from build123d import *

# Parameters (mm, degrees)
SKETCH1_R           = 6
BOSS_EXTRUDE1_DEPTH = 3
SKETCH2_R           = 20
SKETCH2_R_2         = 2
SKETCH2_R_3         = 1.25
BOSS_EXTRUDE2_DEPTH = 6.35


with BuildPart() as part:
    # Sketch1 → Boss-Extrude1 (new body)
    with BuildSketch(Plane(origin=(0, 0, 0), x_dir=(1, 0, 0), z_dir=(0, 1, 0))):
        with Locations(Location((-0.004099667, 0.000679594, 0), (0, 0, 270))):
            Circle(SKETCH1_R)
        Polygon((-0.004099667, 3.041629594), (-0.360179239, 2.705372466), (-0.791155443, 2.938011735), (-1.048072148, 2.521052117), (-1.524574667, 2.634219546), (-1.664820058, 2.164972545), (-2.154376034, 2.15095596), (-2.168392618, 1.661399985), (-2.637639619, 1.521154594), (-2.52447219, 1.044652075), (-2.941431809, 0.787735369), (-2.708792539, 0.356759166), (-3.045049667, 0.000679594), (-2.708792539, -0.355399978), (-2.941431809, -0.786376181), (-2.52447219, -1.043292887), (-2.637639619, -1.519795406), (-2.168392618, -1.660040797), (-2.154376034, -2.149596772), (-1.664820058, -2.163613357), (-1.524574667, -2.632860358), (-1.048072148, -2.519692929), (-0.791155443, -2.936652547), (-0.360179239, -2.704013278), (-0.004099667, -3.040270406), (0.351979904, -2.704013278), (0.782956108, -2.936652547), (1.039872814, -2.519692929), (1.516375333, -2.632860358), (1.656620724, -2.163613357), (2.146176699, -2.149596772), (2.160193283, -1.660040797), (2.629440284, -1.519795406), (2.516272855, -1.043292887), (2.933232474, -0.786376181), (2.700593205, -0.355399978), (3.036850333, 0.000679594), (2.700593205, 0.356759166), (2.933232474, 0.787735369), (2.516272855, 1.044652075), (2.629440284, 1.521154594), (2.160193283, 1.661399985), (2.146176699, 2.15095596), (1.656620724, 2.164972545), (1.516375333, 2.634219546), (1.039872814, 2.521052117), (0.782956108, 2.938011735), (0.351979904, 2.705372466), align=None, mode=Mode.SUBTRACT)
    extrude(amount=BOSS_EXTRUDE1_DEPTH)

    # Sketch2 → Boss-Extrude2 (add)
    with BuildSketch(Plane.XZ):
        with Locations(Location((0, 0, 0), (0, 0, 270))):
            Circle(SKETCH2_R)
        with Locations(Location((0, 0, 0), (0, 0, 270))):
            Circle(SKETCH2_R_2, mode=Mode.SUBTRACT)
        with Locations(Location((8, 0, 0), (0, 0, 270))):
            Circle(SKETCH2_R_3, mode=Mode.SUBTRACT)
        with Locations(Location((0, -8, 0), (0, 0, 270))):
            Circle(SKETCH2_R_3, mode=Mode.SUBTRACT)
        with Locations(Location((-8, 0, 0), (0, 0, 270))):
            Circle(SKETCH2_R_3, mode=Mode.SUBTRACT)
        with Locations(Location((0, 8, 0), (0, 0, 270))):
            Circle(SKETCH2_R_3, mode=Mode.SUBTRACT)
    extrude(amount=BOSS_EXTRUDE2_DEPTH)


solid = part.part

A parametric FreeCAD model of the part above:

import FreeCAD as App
import Part
import Sketcher
from FreeCAD import Vector
Q = App.Units.Quantity

doc = App.newDocument("Part")
body = doc.addObject("PartDesign::Body", "Body")

sketch1 = body.newObject("Sketcher::SketchObject", "Sketch")
sketch1.AttachmentSupport = (doc.getObject("XZ_Plane"), [""])
sketch1.MapMode = "FlatFace"
sketch1.addGeometry([
    Part.Circle(Vector(0, 0, 0), Vector(0, 0, 1), 6),
    Part.LineSegment(Vector(-0.36, -2.71, 0), Vector(0, -3.04, 0)),
    Part.LineSegment(Vector(0, -3.04, 0), Vector(0.35, -2.71, 0)),
    Part.LineSegment(Vector(0.35, -2.71, 0), Vector(0.78, -2.94, 0)),
    Part.LineSegment(Vector(0.78, -2.94, 0), Vector(1.04, -2.52, 0)),
    Part.LineSegment(Vector(1.04, -2.52, 0), Vector(1.52, -2.63, 0)),
    Part.LineSegment(Vector(1.52, -2.63, 0), Vector(1.66, -2.16, 0)),
    Part.LineSegment(Vector(1.66, -2.16, 0), Vector(2.15, -2.15, 0)),
    Part.LineSegment(Vector(2.15, -2.15, 0), Vector(2.16, -1.66, 0)),
    Part.LineSegment(Vector(2.16, -1.66, 0), Vector(2.63, -1.52, 0)),
    Part.LineSegment(Vector(2.63, -1.52, 0), Vector(2.52, -1.04, 0)),
    Part.LineSegment(Vector(2.52, -1.04, 0), Vector(2.93, -0.79, 0)),
    Part.LineSegment(Vector(2.93, -0.79, 0), Vector(2.7, -0.36, 0)),
    Part.LineSegment(Vector(2.7, -0.36, 0), Vector(3.04, 0, 0)),
    Part.LineSegment(Vector(3.04, 0, 0), Vector(2.7, 0.36, 0)),
    Part.LineSegment(Vector(2.7, 0.36, 0), Vector(2.93, 0.79, 0)),
    Part.LineSegment(Vector(2.93, 0.79, 0), Vector(2.52, 1.04, 0)),
    Part.LineSegment(Vector(2.52, 1.04, 0), Vector(2.63, 1.52, 0)),
    Part.LineSegment(Vector(2.63, 1.52, 0), Vector(2.16, 1.66, 0)),
    Part.LineSegment(Vector(2.16, 1.66, 0), Vector(2.15, 2.15, 0)),
    Part.LineSegment(Vector(2.15, 2.15, 0), Vector(1.66, 2.16, 0)),
    Part.LineSegment(Vector(1.66, 2.16, 0), Vector(1.52, 2.63, 0)),
    Part.LineSegment(Vector(1.52, 2.63, 0), Vector(1.04, 2.52, 0)),
    Part.LineSegment(Vector(1.04, 2.52, 0), Vector(0.78, 2.94, 0)),
    Part.LineSegment(Vector(0.78, 2.94, 0), Vector(0.35, 2.7, 0)),
    Part.LineSegment(Vector(0.35, 2.7, 0), Vector(0, 3.04, 0)),
    Part.LineSegment(Vector(0, 3.04, 0), Vector(-0.36, 2.7, 0)),
    Part.LineSegment(Vector(-0.36, 2.7, 0), Vector(-0.79, 2.94, 0)),
    Part.LineSegment(Vector(-0.79, 2.94, 0), Vector(-1.05, 2.52, 0)),
    Part.LineSegment(Vector(-1.05, 2.52, 0), Vector(-1.52, 2.63, 0)),
    Part.LineSegment(Vector(-1.52, 2.63, 0), Vector(-1.66, 2.16, 0)),
    Part.LineSegment(Vector(-1.66, 2.16, 0), Vector(-2.15, 2.15, 0)),
    Part.LineSegment(Vector(-2.15, 2.15, 0), Vector(-2.17, 1.66, 0)),
    Part.LineSegment(Vector(-2.17, 1.66, 0), Vector(-2.64, 1.52, 0)),
    Part.LineSegment(Vector(-2.64, 1.52, 0), Vector(-2.52, 1.04, 0)),
    Part.LineSegment(Vector(-2.52, 1.04, 0), Vector(-2.94, 0.79, 0)),
    Part.LineSegment(Vector(-2.94, 0.79, 0), Vector(-2.71, 0.36, 0)),
    Part.LineSegment(Vector(-2.71, 0.36, 0), Vector(-3.05, 0, 0)),
    Part.LineSegment(Vector(-3.05, 0, 0), Vector(-2.71, -0.36, 0)),
    Part.LineSegment(Vector(-2.71, -0.36, 0), Vector(-2.94, -0.79, 0)),
    Part.LineSegment(Vector(-2.94, -0.79, 0), Vector(-2.52, -1.04, 0)),
    Part.LineSegment(Vector(-2.52, -1.04, 0), Vector(-2.64, -1.52, 0)),
    Part.LineSegment(Vector(-2.64, -1.52, 0), Vector(-2.17, -1.66, 0)),
    Part.LineSegment(Vector(-2.17, -1.66, 0), Vector(-2.15, -2.15, 0)),
    Part.LineSegment(Vector(-2.15, -2.15, 0), Vector(-1.66, -2.16, 0)),
    Part.LineSegment(Vector(-1.66, -2.16, 0), Vector(-1.52, -2.63, 0)),
    Part.LineSegment(Vector(-1.52, -2.63, 0), Vector(-1.05, -2.52, 0)),
    Part.LineSegment(Vector(-1.05, -2.52, 0), Vector(-0.79, -2.94, 0)),
    Part.LineSegment(Vector(-0.79, -2.94, 0), Vector(-0.36, -2.71, 0)),
], False)
sketch1.addConstraint([
    Sketcher.Constraint("Coincident", 1, 2, 2, 1),
    Sketcher.Constraint("Coincident", 2, 2, 3, 1),
    Sketcher.Constraint("Coincident", 3, 2, 4, 1),
    Sketcher.Constraint("Coincident", 4, 2, 5, 1),
    Sketcher.Constraint("Coincident", 5, 2, 6, 1),
    Sketcher.Constraint("Coincident", 6, 2, 7, 1),
    Sketcher.Constraint("Coincident", 7, 2, 8, 1),
    Sketcher.Constraint("Coincident", 8, 2, 9, 1),
    Sketcher.Constraint("Coincident", 9, 2, 10, 1),
    Sketcher.Constraint("Coincident", 10, 2, 11, 1),
    Sketcher.Constraint("Coincident", 11, 2, 12, 1),
    Sketcher.Constraint("Coincident", 12, 2, 13, 1),
    Sketcher.Constraint("Coincident", 13, 2, 14, 1),
    Sketcher.Constraint("Coincident", 14, 2, 15, 1),
    Sketcher.Constraint("Coincident", 15, 2, 16, 1),
    Sketcher.Constraint("Coincident", 16, 2, 17, 1),
    Sketcher.Constraint("Coincident", 17, 2, 18, 1),
    Sketcher.Constraint("Coincident", 18, 2, 19, 1),
    Sketcher.Constraint("Coincident", 19, 2, 20, 1),
    Sketcher.Constraint("Coincident", 20, 2, 21, 1),
    Sketcher.Constraint("Coincident", 21, 2, 22, 1),
    Sketcher.Constraint("Coincident", 22, 2, 23, 1),
    Sketcher.Constraint("Coincident", 23, 2, 24, 1),
    Sketcher.Constraint("Coincident", 24, 2, 25, 1),
    Sketcher.Constraint("Coincident", 25, 2, 26, 1),
    Sketcher.Constraint("Coincident", 26, 2, 27, 1),
    Sketcher.Constraint("Coincident", 27, 2, 28, 1),
    Sketcher.Constraint("Coincident", 28, 2, 29, 1),
    Sketcher.Constraint("Coincident", 29, 2, 30, 1),
    Sketcher.Constraint("Coincident", 30, 2, 31, 1),
    Sketcher.Constraint("Coincident", 31, 2, 32, 1),
    Sketcher.Constraint("Coincident", 32, 2, 33, 1),
    Sketcher.Constraint("Coincident", 33, 2, 34, 1),
    Sketcher.Constraint("Coincident", 34, 2, 35, 1),
    Sketcher.Constraint("Coincident", 35, 2, 36, 1),
    Sketcher.Constraint("Coincident", 36, 2, 37, 1),
    Sketcher.Constraint("Coincident", 37, 2, 38, 1),
    Sketcher.Constraint("Coincident", 38, 2, 39, 1),
    Sketcher.Constraint("Coincident", 39, 2, 40, 1),
    Sketcher.Constraint("Coincident", 40, 2, 41, 1),
    Sketcher.Constraint("Coincident", 41, 2, 42, 1),
    Sketcher.Constraint("Coincident", 42, 2, 43, 1),
    Sketcher.Constraint("Coincident", 43, 2, 44, 1),
    Sketcher.Constraint("Coincident", 44, 2, 45, 1),
    Sketcher.Constraint("Coincident", 45, 2, 46, 1),
    Sketcher.Constraint("Coincident", 46, 2, 47, 1),
    Sketcher.Constraint("Coincident", 47, 2, 48, 1),
    Sketcher.Constraint("Coincident", 48, 2, 1, 1),
    Sketcher.Constraint("Perpendicular", 1, 13),
    Sketcher.Constraint("Perpendicular", 2, 14),
    Sketcher.Constraint("Perpendicular", 3, 15),
    Sketcher.Constraint("Perpendicular", 4, 16),
    Sketcher.Constraint("Perpendicular", 5, 17),
    Sketcher.Constraint("Perpendicular", 6, 18),
    Sketcher.Constraint("Perpendicular", 7, 19),
    Sketcher.Constraint("Perpendicular", 8, 20),
    Sketcher.Constraint("Perpendicular", 9, 21),
    Sketcher.Constraint("Perpendicular", 10, 22),
    Sketcher.Constraint("Perpendicular", 11, 23),
    Sketcher.Constraint("Perpendicular", 12, 24),
    Sketcher.Constraint("Perpendicular", 13, 25),
    Sketcher.Constraint("Perpendicular", 14, 26),
    Sketcher.Constraint("Perpendicular", 15, 27),
    Sketcher.Constraint("Perpendicular", 16, 28),
    Sketcher.Constraint("Perpendicular", 17, 29),
    Sketcher.Constraint("Perpendicular", 18, 30),
    Sketcher.Constraint("Perpendicular", 19, 31),
    Sketcher.Constraint("Perpendicular", 20, 32),
    Sketcher.Constraint("Perpendicular", 21, 33),
    Sketcher.Constraint("Perpendicular", 22, 34),
    Sketcher.Constraint("Perpendicular", 23, 35),
    Sketcher.Constraint("Perpendicular", 24, 36),
    Sketcher.Constraint("Perpendicular", 25, 37),
    Sketcher.Constraint("Perpendicular", 26, 38),
    Sketcher.Constraint("Perpendicular", 27, 39),
    Sketcher.Constraint("Perpendicular", 28, 40),
    Sketcher.Constraint("Perpendicular", 29, 41),
    Sketcher.Constraint("Perpendicular", 30, 42),
    Sketcher.Constraint("Perpendicular", 31, 43),
    Sketcher.Constraint("Perpendicular", 32, 44),
    Sketcher.Constraint("Perpendicular", 33, 45),
    Sketcher.Constraint("Perpendicular", 34, 46),
    Sketcher.Constraint("Perpendicular", 35, 47),
    Sketcher.Constraint("Perpendicular", 36, 48),
    Sketcher.Constraint("Horizontal", 0, 3, 13, 2),
    Sketcher.Constraint("Horizontal", 24, 2, 26, 2),
    Sketcher.Constraint("Horizontal", 23, 2, 27, 2),
    Sketcher.Constraint("Horizontal", 22, 2, 28, 2),
    Sketcher.Constraint("Horizontal", 21, 2, 29, 2),
    Sketcher.Constraint("Horizontal", 20, 2, 30, 2),
    Sketcher.Constraint("Horizontal", 19, 2, 31, 2),
    Sketcher.Constraint("Horizontal", 18, 2, 32, 2),
    Sketcher.Constraint("Horizontal", 17, 2, 33, 2),
    Sketcher.Constraint("Horizontal", 16, 2, 34, 2),
    Sketcher.Constraint("Horizontal", 15, 2, 35, 2),
    Sketcher.Constraint("Horizontal", 14, 2, 36, 2),
    Sketcher.Constraint("Horizontal", 13, 2, 37, 2),
    Sketcher.Constraint("Horizontal", 12, 2, 38, 2),
    Sketcher.Constraint("Horizontal", 11, 2, 39, 2),
    Sketcher.Constraint("Horizontal", 10, 2, 40, 2),
    Sketcher.Constraint("Horizontal", 9, 2, 41, 2),
    Sketcher.Constraint("Horizontal", 8, 2, 42, 2),
    Sketcher.Constraint("Horizontal", 7, 2, 43, 2),
    Sketcher.Constraint("Horizontal", 6, 2, 44, 2),
    Sketcher.Constraint("Horizontal", 5, 2, 45, 2),
    Sketcher.Constraint("Horizontal", 4, 2, 46, 2),
    Sketcher.Constraint("Horizontal", 3, 2, 47, 2),
    Sketcher.Constraint("Horizontal", 2, 2, 48, 2),
    Sketcher.Constraint("Vertical", 0, 3, 1, 2),
    Sketcher.Constraint("Vertical", 12, 2, 14, 2),
    Sketcher.Constraint("Vertical", 11, 2, 15, 2),
    Sketcher.Constraint("Vertical", 10, 2, 16, 2),
    Sketcher.Constraint("Vertical", 9, 2, 17, 2),
    Sketcher.Constraint("Vertical", 8, 2, 18, 2),
    Sketcher.Constraint("Vertical", 7, 2, 19, 2),
    Sketcher.Constraint("Vertical", 6, 2, 20, 2),
    Sketcher.Constraint("Vertical", 5, 2, 21, 2),
    Sketcher.Constraint("Vertical", 4, 2, 22, 2),
    Sketcher.Constraint("Vertical", 3, 2, 23, 2),
    Sketcher.Constraint("Vertical", 2, 2, 24, 2),
    Sketcher.Constraint("Vertical", 1, 2, 25, 2),
    Sketcher.Constraint("Vertical", 36, 2, 38, 2),
    Sketcher.Constraint("Vertical", 35, 2, 39, 2),
    Sketcher.Constraint("Vertical", 34, 2, 40, 2),
    Sketcher.Constraint("Vertical", 33, 2, 41, 2),
    Sketcher.Constraint("Vertical", 32, 2, 42, 2),
    Sketcher.Constraint("Equal", 2, 3),
    Sketcher.Constraint("Equal", 3, 4),
    Sketcher.Constraint("Equal", 4, 5),
    Sketcher.Constraint("Equal", 5, 6),
    Sketcher.Constraint("Equal", 6, 7),
    Sketcher.Constraint("Equal", 7, 8),
    Sketcher.Constraint("Equal", 8, 9),
    Sketcher.Constraint("Equal", 9, 10),
    Sketcher.Constraint("Equal", 10, 11),
    Sketcher.Constraint("Equal", 11, 12),
    Sketcher.Constraint("Equal", 12, 13),
    Sketcher.Constraint("Diameter", 0, 12.0),
    Sketcher.Constraint("Angle", 1, Q("-43.36 deg")),
    Sketcher.Constraint("Angle", 3, Q("-28.36 deg")),
    Sketcher.Constraint("Angle", 4, Q("58.36 deg")),
    Sketcher.Constraint("Angle", 5, Q("-13.36 deg")),
    Sketcher.Constraint("Angle", 6, Q("73.36 deg")),
    Sketcher.Constraint("Angle", 7, Q("1.64 deg")),
    Sketcher.Constraint("DistanceX", 0, 3, -1, 1, 0.0041),
    Sketcher.Constraint("DistanceY", 8, 2, -1, 1, 1.6614),
    Sketcher.Constraint("DistanceY", -1, 1, 14, 2, 0.3554),
])
pad1 = body.newObject("PartDesign::Pad", "Pad")
pad1.Profile = sketch1
pad1.Length = 3
pad1.Reversed = True

sketch2 = body.newObject("Sketcher::SketchObject", "Sketch001")
sketch2.AttachmentSupport = (doc.getObject("XZ_Plane"), [""])
sketch2.MapMode = "FlatFace"
sketch2.addGeometry([
    Part.Circle(Vector(0, 0, 0), Vector(0, 0, 1), 20),
    Part.Circle(Vector(0, 8, 0), Vector(0, 0, 1), 1.2),
    Part.Circle(Vector(-8, 0, 0), Vector(0, 0, 1), 1.2),
    Part.Circle(Vector(0, 0, 0), Vector(0, 0, 1), 2),
    Part.Circle(Vector(0, -8, 0), Vector(0, 0, 1), 1.2),
    Part.Circle(Vector(8, 0, 0), Vector(0, 0, 1), 1.2),
], False)
sketch2.addConstraint([
    Sketcher.Constraint("Coincident", 0, 3, -1, 1),
    Sketcher.Constraint("Coincident", 3, 3, -1, 1),
    Sketcher.Constraint("Equal", 1, 2),
    Sketcher.Constraint("Equal", 2, 4),
    Sketcher.Constraint("Equal", 4, 5),
    Sketcher.Constraint("Symmetric", 1, 3, 4, 3, -1, 1),
    Sketcher.Constraint("Symmetric", 2, 3, 5, 3, -1, 1),
    Sketcher.Constraint("PointOnObject", 1, 3, -2),
    Sketcher.Constraint("PointOnObject", 2, 3, -1),
    Sketcher.Constraint("Diameter", 0, 40.0),
    Sketcher.Constraint("Diameter", 3, 4.0),
    Sketcher.Constraint("Diameter", 1, 2.5),
    Sketcher.Constraint("DistanceY", -1, 1, 1, 3, 8.0),
    Sketcher.Constraint("DistanceX", 2, 3, -1, 1, 8.0),
])
pad2 = body.newObject("PartDesign::Pad", "Pad001")
pad2.Profile = sketch2
pad2.Length = 6.35

doc.recompute()
